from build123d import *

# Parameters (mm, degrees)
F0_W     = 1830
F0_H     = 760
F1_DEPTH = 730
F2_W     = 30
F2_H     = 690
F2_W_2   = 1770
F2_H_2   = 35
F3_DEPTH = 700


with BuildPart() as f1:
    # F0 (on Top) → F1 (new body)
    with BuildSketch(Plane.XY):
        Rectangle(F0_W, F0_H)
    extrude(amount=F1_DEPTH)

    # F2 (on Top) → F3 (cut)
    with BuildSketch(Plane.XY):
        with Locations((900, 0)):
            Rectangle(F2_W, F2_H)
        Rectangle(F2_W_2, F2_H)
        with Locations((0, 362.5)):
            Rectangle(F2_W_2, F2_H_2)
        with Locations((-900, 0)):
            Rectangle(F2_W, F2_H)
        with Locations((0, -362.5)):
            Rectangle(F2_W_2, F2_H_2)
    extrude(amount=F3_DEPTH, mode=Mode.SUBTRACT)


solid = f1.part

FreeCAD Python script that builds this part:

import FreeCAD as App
import Part
import Sketcher

V = App.Vector

doc = App.newDocument("Part")
body = doc.addObject("PartDesign::Body", "Body")

# Sketch on XY plane
sketch1 = body.newObject("Sketcher::SketchObject", "Sketch")
sketch1.AttachmentSupport = (doc.getObject("XY_Plane"), [""])
sketch1.MapMode = "FlatFace"
sketch1.addGeometry([
    Part.LineSegment(V(-915, 380, 0), V(-915, -380, 0)),
    Part.LineSegment(V(-915, -380, 0), V(915, -380, 0)),
    Part.LineSegment(V(915, -380, 0), V(915, 380, 0)),
    Part.LineSegment(V(915, 380, 0), V(-915, 380, 0)),
], False)
sketch1.addConstraint([
    Sketcher.Constraint("Coincident", 0, 2, 1, 1),
    Sketcher.Constraint("Coincident", 1, 2, 2, 1),
    Sketcher.Constraint("Coincident", 2, 2, 3, 1),
    Sketcher.Constraint("Coincident", 3, 2, 0, 1),
    Sketcher.Constraint("Vertical", 0),
    Sketcher.Constraint("Horizontal", 1),
    Sketcher.Constraint("Vertical", 2),
    Sketcher.Constraint("Horizontal", 3),
    Sketcher.Constraint("Symmetric", 0, 2, 2, 2, -1, 1),
    Sketcher.Constraint("DistanceX", 1, 1, 1, 2, 1830.0),
    Sketcher.Constraint("DistanceY", 0, 2, 0, 1, 760.0),
])
pad1 = body.newObject("PartDesign::Pad", "Pad")
pad1.Profile = sketch1
pad1.Length = 730

# Sketch on XY plane
sketch2 = body.newObject("Sketcher::SketchObject", "Sketch001")
sketch2.AttachmentSupport = (doc.getObject("XY_Plane"), [""])
sketch2.MapMode = "FlatFace"
sketch2.addGeometry([
    Part.LineSegment(V(915, -345, 0), V(915, 345, 0)),  # 0
    Part.LineSegment(V(915, 345, 0), V(885, 345, 0)),  # 1
    Part.LineSegment(V(885, 345, 0), V(885, 380, 0)),  # 2
    Part.LineSegment(V(885, 380, 0), V(-885, 380, 0)),  # 3
    Part.LineSegment(V(-885, 380, 0), V(-885, 345, 0)),  # 4
    Part.LineSegment(V(-885, 345, 0), V(-915, 345, 0)),  # 5
    Part.LineSegment(V(-915, 345, 0), V(-915, -345, 0)),  # 6
    Part.LineSegment(V(-915, -345, 0), V(-885, -345, 0)),  # 7
    Part.LineSegment(V(-885, -345, 0), V(-885, -380, 0)),  # 8
    Part.LineSegment(V(-885, -380, 0), V(885, -380, 0)),  # 9
    Part.LineSegment(V(885, -380, 0), V(885, -345, 0)),  # 10
    Part.LineSegment(V(885, -345, 0), V(915, -345, 0)),  # 11
], False)
sketch2.addConstraint([
    Sketcher.Constraint("Coincident", 0, 2, 1, 1),
    Sketcher.Constraint("Coincident", 1, 2, 2, 1),
    Sketcher.Constraint("Coincident", 2, 2, 3, 1),
    Sketcher.Constraint("Coincident", 3, 2, 4, 1),
    Sketcher.Constraint("Coincident", 4, 2, 5, 1),
    Sketcher.Constraint("Coincident", 5, 2, 6, 1),
    Sketcher.Constraint("Coincident", 6, 2, 7, 1),
    Sketcher.Constraint("Coincident", 7, 2, 8, 1),
    Sketcher.Constraint("Coincident", 8, 2, 9, 1),
    Sketcher.Constraint("Coincident", 9, 2, 10, 1),
    Sketcher.Constraint("Coincident", 10, 2, 11, 1),
    Sketcher.Constraint("Coincident", 11, 2, 0, 1),
    Sketcher.Constraint("Vertical", 0),
    Sketcher.Constraint("Horizontal", 1),
    Sketcher.Constraint("Vertical", 2),
    Sketcher.Constraint("Horizontal", 3),
    Sketcher.Constraint("Vertical", 4),
    Sketcher.Constraint("Horizontal", 5),
    Sketcher.Constraint("Vertical", 6),
    Sketcher.Constraint("Horizontal", 7),
    Sketcher.Constraint("Vertical", 8),
    Sketcher.Constraint("Horizontal", 9),
    Sketcher.Constraint("Vertical", 10),
    Sketcher.Constraint("Horizontal", 11),
    Sketcher.Constraint("Symmetric", 0, 2, 6, 2, -1, 1),
    Sketcher.Constraint("Symmetric", 2, 2, 8, 2, -1, 1),
    Sketcher.Constraint("Symmetric", 4, 2, 10, 2, -1, 1),
    Sketcher.Constraint("Symmetric", 1, 2, 4, 2, -2),
    Sketcher.Constraint("DistanceX", 1, 2, 1, 1, 30.0),
    Sketcher.Constraint("DistanceX", 3, 2, 3, 1, 1770.0),
    Sketcher.Constraint("DistanceY", 0, 1, 0, 2, 690.0),
    Sketcher.Constraint("DistanceY", 2, 1, 2, 2, 35.0),
])
pocket1 = body.newObject("PartDesign::Pocket", "Pocket")
pocket1.Profile = sketch2
pocket1.Length = 700
pocket1.Reversed = True

doc.recompute()
